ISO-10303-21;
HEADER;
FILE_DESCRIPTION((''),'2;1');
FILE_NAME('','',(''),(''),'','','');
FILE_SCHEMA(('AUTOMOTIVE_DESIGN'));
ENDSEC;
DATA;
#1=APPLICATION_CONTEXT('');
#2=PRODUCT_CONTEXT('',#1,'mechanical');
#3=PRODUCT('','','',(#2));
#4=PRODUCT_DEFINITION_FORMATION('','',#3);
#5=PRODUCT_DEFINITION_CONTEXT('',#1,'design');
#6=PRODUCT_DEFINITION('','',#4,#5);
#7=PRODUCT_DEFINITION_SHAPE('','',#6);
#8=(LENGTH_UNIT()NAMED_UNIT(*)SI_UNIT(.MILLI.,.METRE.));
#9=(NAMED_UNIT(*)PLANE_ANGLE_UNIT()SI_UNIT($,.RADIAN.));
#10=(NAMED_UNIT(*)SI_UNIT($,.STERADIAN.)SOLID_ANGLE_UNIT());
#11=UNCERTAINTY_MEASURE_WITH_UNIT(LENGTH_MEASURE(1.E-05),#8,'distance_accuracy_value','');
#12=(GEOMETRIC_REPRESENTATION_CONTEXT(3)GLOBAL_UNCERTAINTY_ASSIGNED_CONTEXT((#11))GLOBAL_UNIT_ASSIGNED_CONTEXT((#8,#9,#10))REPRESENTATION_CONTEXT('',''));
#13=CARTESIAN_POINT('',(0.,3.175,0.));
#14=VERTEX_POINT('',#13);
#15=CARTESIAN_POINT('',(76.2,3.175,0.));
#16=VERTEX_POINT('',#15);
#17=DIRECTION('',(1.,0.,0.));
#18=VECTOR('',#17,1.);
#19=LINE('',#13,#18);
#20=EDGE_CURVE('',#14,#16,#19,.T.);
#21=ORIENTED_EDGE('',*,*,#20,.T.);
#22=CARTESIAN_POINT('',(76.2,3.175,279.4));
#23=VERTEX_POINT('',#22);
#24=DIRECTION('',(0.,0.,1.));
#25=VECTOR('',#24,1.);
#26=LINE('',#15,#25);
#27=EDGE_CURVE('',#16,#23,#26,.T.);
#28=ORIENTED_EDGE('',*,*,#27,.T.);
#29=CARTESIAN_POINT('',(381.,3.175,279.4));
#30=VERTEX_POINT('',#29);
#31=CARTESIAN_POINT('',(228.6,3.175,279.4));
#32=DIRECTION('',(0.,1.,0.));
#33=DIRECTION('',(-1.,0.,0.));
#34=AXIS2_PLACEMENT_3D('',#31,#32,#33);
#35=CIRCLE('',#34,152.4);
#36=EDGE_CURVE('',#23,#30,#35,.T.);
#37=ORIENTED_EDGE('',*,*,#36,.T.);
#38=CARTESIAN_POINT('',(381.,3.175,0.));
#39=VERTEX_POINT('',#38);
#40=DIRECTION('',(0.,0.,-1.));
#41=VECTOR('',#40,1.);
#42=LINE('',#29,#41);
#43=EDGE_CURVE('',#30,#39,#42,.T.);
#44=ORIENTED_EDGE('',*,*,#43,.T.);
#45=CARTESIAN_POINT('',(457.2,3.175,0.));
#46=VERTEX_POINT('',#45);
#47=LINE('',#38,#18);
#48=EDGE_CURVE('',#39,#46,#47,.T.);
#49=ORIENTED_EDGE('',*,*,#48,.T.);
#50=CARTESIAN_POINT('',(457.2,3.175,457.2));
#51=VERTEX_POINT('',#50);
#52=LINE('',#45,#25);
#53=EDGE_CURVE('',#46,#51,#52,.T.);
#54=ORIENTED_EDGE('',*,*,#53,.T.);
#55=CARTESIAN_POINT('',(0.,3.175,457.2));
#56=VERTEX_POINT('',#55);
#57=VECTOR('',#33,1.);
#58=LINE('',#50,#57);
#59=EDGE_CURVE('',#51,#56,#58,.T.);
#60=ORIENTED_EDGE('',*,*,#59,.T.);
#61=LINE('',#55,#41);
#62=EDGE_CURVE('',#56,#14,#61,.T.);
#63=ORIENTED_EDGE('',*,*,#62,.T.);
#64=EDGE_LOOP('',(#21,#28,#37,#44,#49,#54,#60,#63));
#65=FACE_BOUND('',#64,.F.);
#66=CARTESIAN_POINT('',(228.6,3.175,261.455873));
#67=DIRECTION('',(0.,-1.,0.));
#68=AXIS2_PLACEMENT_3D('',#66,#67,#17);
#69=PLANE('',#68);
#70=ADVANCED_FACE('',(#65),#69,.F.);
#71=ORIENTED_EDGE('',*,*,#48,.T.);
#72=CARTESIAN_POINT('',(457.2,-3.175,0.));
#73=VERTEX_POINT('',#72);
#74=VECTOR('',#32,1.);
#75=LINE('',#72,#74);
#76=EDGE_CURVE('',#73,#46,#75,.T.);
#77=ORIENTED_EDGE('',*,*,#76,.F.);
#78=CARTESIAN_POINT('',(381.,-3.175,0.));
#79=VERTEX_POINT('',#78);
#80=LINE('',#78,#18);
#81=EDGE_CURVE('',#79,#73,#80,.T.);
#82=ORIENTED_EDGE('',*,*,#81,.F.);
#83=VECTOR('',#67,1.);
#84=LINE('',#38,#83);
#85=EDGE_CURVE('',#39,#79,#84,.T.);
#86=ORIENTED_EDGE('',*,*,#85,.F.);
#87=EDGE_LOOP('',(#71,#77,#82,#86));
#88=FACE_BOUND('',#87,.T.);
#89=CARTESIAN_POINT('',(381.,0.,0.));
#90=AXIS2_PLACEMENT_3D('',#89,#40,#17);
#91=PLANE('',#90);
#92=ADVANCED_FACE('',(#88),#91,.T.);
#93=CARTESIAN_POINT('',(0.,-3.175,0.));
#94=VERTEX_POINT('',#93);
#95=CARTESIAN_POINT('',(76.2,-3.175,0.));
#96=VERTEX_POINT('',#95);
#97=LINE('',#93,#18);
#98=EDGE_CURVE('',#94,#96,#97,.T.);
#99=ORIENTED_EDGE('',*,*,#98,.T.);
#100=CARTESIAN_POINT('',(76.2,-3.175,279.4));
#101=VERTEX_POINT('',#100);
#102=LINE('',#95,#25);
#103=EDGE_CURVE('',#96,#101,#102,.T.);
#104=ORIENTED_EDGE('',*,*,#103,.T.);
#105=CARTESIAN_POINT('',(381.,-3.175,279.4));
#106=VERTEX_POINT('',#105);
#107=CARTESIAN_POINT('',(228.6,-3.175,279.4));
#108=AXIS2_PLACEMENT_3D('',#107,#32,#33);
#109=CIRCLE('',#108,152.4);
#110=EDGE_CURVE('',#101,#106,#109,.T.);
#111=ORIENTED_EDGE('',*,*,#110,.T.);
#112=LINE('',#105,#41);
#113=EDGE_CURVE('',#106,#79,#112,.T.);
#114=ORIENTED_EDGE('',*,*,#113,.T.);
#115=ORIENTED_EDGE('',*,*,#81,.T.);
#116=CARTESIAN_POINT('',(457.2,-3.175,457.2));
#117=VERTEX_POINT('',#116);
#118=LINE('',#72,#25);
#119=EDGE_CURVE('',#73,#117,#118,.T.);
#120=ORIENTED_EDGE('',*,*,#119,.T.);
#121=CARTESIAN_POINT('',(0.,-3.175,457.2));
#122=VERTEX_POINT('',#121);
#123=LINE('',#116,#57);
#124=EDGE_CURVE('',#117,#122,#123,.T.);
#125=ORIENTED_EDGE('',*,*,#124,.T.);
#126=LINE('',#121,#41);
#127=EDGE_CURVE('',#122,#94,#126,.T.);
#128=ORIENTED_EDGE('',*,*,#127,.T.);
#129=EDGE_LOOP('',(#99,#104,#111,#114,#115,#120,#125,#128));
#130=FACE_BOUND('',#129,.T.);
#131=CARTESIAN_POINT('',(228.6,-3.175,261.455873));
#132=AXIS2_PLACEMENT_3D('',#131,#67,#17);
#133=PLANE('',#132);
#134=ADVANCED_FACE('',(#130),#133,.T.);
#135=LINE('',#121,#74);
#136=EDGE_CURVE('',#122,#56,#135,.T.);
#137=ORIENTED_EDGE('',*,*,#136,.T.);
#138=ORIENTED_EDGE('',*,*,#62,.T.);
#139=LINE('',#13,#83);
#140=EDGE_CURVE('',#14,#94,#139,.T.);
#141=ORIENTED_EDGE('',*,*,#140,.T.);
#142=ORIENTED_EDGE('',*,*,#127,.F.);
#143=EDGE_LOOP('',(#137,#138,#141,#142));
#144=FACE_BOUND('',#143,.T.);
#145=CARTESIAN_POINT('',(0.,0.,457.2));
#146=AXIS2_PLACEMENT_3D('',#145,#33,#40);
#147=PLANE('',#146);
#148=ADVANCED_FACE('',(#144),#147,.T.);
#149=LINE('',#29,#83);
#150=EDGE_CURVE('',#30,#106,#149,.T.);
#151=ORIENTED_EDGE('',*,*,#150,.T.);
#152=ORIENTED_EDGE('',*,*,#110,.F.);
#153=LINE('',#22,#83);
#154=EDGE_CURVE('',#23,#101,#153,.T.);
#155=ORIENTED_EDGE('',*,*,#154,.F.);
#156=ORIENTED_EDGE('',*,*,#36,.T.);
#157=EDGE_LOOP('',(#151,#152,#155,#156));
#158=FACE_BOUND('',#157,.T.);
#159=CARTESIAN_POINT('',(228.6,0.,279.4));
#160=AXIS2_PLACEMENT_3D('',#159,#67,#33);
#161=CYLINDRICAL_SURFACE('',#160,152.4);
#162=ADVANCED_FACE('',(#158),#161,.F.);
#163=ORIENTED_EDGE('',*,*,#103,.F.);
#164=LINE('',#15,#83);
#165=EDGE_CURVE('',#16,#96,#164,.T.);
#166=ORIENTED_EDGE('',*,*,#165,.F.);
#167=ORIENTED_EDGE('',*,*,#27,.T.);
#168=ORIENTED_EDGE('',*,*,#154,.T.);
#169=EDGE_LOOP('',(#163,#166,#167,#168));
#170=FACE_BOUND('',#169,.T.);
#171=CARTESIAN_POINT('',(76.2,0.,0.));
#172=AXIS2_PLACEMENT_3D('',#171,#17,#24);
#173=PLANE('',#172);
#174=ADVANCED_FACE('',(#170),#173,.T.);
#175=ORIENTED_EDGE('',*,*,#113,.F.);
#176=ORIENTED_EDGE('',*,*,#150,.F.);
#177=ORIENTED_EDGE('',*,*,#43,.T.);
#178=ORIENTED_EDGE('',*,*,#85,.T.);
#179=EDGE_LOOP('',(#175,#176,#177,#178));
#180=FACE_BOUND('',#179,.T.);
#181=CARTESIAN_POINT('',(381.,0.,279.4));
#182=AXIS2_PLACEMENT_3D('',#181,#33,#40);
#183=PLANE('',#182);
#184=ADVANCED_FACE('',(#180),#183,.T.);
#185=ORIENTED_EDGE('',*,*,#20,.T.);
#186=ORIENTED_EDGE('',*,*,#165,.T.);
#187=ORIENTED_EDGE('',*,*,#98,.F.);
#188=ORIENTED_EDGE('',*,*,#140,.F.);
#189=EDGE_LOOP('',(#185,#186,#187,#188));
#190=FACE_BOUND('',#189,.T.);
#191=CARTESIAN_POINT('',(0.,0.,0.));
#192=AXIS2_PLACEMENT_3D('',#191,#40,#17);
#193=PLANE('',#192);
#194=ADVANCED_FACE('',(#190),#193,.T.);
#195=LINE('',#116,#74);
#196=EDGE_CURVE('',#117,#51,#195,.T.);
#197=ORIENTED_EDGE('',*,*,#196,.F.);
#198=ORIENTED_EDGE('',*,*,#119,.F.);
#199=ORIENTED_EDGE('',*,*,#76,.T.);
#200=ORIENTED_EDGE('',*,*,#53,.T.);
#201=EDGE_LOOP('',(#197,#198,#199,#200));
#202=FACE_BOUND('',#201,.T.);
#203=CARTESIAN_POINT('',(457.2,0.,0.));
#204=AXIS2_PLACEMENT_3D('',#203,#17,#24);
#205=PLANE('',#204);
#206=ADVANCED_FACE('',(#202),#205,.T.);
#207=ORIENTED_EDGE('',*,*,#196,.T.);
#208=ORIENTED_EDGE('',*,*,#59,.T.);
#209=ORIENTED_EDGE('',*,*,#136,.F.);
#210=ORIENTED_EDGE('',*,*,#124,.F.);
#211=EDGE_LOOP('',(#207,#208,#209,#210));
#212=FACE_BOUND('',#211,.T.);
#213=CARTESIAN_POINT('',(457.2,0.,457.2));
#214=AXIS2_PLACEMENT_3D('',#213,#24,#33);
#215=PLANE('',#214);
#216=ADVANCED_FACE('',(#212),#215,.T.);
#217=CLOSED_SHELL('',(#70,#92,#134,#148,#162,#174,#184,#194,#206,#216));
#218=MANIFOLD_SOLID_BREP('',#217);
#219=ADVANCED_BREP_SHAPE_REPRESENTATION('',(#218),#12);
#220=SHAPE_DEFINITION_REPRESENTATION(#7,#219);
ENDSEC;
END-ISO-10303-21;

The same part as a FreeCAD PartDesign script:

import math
import FreeCAD as App
import Part
import Sketcher

V = App.Vector
Q = App.Units.Quantity

doc = App.newDocument("Part")
body = doc.addObject("PartDesign::Body", "Body")

# Sketch on XZ plane
sketch1 = body.newObject("Sketcher::SketchObject", "Sketch")
sketch1.AttachmentSupport = (doc.getObject("XZ_Plane"), [""])
sketch1.MapMode = "FlatFace"
sketch1.addGeometry([
    Part.LineSegment(V(0, 457.2, 0), V(0, 0, 0)),  # 0
    Part.LineSegment(V(0, 0, 0), V(76.2, 0, 0)),  # 1
    Part.LineSegment(V(76.2, 0, 0), V(76.2, 279.4, 0)),  # 2
    Part.ArcOfCircle(Part.Circle(V(228.6, 279.4, 0), V(0, 0, 1), 152.4), math.radians(0), math.radians(180)),  # 3
    Part.LineSegment(V(381, 279.4, 0), V(381, 0, 0)),  # 4
    Part.LineSegment(V(381, 0, 0), V(457.2, 0, 0)),  # 5
    Part.LineSegment(V(457.2, 0, 0), V(457.2, 457.2, 0)),  # 6
    Part.LineSegment(V(457.2, 457.2, 0), V(0, 457.2, 0)),  # 7
], False)
sketch1.addConstraint([
    Sketcher.Constraint("Coincident", 0, 2, 1, 1),
    Sketcher.Constraint("Coincident", 1, 2, 2, 1),
    Sketcher.Constraint("Tangent", 2, 2, 3, 2),
    Sketcher.Constraint("Tangent", 3, 1, 4, 1),
    Sketcher.Constraint("Coincident", 4, 2, 5, 1),
    Sketcher.Constraint("Coincident", 5, 2, 6, 1),
    Sketcher.Constraint("Coincident", 6, 2, 7, 1),
    Sketcher.Constraint("Coincident", 7, 2, 0, 1),
    Sketcher.Constraint("Vertical", 0),
    Sketcher.Constraint("Horizontal", 1),
    Sketcher.Constraint("Vertical", 2),
    Sketcher.Constraint("Vertical", 4),
    Sketcher.Constraint("Horizontal", 5),
    Sketcher.Constraint("Vertical", 6),
    Sketcher.Constraint("Horizontal", 7),
    Sketcher.Constraint("Coincident", 0, 2, -1, 1),
    Sketcher.Constraint("PointOnObject", 4, 2, -1),
    Sketcher.Constraint("Equal", 1, 5),
    Sketcher.Constraint("Equal", 7, 0),
    Sketcher.Constraint("Radius", 3, Q("6 in")),
    Sketcher.Constraint("DistanceX", 1, 1, 1, 2, Q("3 in")),
    Sketcher.Constraint("DistanceY", 2, 1, 2, 2, Q("11 in")),
])
pad1 = body.newObject("PartDesign::Pad", "Pad")
pad1.Profile = sketch1
pad1.Length = Q("0.25 in")
pad1.Midplane = True

doc.recompute()
